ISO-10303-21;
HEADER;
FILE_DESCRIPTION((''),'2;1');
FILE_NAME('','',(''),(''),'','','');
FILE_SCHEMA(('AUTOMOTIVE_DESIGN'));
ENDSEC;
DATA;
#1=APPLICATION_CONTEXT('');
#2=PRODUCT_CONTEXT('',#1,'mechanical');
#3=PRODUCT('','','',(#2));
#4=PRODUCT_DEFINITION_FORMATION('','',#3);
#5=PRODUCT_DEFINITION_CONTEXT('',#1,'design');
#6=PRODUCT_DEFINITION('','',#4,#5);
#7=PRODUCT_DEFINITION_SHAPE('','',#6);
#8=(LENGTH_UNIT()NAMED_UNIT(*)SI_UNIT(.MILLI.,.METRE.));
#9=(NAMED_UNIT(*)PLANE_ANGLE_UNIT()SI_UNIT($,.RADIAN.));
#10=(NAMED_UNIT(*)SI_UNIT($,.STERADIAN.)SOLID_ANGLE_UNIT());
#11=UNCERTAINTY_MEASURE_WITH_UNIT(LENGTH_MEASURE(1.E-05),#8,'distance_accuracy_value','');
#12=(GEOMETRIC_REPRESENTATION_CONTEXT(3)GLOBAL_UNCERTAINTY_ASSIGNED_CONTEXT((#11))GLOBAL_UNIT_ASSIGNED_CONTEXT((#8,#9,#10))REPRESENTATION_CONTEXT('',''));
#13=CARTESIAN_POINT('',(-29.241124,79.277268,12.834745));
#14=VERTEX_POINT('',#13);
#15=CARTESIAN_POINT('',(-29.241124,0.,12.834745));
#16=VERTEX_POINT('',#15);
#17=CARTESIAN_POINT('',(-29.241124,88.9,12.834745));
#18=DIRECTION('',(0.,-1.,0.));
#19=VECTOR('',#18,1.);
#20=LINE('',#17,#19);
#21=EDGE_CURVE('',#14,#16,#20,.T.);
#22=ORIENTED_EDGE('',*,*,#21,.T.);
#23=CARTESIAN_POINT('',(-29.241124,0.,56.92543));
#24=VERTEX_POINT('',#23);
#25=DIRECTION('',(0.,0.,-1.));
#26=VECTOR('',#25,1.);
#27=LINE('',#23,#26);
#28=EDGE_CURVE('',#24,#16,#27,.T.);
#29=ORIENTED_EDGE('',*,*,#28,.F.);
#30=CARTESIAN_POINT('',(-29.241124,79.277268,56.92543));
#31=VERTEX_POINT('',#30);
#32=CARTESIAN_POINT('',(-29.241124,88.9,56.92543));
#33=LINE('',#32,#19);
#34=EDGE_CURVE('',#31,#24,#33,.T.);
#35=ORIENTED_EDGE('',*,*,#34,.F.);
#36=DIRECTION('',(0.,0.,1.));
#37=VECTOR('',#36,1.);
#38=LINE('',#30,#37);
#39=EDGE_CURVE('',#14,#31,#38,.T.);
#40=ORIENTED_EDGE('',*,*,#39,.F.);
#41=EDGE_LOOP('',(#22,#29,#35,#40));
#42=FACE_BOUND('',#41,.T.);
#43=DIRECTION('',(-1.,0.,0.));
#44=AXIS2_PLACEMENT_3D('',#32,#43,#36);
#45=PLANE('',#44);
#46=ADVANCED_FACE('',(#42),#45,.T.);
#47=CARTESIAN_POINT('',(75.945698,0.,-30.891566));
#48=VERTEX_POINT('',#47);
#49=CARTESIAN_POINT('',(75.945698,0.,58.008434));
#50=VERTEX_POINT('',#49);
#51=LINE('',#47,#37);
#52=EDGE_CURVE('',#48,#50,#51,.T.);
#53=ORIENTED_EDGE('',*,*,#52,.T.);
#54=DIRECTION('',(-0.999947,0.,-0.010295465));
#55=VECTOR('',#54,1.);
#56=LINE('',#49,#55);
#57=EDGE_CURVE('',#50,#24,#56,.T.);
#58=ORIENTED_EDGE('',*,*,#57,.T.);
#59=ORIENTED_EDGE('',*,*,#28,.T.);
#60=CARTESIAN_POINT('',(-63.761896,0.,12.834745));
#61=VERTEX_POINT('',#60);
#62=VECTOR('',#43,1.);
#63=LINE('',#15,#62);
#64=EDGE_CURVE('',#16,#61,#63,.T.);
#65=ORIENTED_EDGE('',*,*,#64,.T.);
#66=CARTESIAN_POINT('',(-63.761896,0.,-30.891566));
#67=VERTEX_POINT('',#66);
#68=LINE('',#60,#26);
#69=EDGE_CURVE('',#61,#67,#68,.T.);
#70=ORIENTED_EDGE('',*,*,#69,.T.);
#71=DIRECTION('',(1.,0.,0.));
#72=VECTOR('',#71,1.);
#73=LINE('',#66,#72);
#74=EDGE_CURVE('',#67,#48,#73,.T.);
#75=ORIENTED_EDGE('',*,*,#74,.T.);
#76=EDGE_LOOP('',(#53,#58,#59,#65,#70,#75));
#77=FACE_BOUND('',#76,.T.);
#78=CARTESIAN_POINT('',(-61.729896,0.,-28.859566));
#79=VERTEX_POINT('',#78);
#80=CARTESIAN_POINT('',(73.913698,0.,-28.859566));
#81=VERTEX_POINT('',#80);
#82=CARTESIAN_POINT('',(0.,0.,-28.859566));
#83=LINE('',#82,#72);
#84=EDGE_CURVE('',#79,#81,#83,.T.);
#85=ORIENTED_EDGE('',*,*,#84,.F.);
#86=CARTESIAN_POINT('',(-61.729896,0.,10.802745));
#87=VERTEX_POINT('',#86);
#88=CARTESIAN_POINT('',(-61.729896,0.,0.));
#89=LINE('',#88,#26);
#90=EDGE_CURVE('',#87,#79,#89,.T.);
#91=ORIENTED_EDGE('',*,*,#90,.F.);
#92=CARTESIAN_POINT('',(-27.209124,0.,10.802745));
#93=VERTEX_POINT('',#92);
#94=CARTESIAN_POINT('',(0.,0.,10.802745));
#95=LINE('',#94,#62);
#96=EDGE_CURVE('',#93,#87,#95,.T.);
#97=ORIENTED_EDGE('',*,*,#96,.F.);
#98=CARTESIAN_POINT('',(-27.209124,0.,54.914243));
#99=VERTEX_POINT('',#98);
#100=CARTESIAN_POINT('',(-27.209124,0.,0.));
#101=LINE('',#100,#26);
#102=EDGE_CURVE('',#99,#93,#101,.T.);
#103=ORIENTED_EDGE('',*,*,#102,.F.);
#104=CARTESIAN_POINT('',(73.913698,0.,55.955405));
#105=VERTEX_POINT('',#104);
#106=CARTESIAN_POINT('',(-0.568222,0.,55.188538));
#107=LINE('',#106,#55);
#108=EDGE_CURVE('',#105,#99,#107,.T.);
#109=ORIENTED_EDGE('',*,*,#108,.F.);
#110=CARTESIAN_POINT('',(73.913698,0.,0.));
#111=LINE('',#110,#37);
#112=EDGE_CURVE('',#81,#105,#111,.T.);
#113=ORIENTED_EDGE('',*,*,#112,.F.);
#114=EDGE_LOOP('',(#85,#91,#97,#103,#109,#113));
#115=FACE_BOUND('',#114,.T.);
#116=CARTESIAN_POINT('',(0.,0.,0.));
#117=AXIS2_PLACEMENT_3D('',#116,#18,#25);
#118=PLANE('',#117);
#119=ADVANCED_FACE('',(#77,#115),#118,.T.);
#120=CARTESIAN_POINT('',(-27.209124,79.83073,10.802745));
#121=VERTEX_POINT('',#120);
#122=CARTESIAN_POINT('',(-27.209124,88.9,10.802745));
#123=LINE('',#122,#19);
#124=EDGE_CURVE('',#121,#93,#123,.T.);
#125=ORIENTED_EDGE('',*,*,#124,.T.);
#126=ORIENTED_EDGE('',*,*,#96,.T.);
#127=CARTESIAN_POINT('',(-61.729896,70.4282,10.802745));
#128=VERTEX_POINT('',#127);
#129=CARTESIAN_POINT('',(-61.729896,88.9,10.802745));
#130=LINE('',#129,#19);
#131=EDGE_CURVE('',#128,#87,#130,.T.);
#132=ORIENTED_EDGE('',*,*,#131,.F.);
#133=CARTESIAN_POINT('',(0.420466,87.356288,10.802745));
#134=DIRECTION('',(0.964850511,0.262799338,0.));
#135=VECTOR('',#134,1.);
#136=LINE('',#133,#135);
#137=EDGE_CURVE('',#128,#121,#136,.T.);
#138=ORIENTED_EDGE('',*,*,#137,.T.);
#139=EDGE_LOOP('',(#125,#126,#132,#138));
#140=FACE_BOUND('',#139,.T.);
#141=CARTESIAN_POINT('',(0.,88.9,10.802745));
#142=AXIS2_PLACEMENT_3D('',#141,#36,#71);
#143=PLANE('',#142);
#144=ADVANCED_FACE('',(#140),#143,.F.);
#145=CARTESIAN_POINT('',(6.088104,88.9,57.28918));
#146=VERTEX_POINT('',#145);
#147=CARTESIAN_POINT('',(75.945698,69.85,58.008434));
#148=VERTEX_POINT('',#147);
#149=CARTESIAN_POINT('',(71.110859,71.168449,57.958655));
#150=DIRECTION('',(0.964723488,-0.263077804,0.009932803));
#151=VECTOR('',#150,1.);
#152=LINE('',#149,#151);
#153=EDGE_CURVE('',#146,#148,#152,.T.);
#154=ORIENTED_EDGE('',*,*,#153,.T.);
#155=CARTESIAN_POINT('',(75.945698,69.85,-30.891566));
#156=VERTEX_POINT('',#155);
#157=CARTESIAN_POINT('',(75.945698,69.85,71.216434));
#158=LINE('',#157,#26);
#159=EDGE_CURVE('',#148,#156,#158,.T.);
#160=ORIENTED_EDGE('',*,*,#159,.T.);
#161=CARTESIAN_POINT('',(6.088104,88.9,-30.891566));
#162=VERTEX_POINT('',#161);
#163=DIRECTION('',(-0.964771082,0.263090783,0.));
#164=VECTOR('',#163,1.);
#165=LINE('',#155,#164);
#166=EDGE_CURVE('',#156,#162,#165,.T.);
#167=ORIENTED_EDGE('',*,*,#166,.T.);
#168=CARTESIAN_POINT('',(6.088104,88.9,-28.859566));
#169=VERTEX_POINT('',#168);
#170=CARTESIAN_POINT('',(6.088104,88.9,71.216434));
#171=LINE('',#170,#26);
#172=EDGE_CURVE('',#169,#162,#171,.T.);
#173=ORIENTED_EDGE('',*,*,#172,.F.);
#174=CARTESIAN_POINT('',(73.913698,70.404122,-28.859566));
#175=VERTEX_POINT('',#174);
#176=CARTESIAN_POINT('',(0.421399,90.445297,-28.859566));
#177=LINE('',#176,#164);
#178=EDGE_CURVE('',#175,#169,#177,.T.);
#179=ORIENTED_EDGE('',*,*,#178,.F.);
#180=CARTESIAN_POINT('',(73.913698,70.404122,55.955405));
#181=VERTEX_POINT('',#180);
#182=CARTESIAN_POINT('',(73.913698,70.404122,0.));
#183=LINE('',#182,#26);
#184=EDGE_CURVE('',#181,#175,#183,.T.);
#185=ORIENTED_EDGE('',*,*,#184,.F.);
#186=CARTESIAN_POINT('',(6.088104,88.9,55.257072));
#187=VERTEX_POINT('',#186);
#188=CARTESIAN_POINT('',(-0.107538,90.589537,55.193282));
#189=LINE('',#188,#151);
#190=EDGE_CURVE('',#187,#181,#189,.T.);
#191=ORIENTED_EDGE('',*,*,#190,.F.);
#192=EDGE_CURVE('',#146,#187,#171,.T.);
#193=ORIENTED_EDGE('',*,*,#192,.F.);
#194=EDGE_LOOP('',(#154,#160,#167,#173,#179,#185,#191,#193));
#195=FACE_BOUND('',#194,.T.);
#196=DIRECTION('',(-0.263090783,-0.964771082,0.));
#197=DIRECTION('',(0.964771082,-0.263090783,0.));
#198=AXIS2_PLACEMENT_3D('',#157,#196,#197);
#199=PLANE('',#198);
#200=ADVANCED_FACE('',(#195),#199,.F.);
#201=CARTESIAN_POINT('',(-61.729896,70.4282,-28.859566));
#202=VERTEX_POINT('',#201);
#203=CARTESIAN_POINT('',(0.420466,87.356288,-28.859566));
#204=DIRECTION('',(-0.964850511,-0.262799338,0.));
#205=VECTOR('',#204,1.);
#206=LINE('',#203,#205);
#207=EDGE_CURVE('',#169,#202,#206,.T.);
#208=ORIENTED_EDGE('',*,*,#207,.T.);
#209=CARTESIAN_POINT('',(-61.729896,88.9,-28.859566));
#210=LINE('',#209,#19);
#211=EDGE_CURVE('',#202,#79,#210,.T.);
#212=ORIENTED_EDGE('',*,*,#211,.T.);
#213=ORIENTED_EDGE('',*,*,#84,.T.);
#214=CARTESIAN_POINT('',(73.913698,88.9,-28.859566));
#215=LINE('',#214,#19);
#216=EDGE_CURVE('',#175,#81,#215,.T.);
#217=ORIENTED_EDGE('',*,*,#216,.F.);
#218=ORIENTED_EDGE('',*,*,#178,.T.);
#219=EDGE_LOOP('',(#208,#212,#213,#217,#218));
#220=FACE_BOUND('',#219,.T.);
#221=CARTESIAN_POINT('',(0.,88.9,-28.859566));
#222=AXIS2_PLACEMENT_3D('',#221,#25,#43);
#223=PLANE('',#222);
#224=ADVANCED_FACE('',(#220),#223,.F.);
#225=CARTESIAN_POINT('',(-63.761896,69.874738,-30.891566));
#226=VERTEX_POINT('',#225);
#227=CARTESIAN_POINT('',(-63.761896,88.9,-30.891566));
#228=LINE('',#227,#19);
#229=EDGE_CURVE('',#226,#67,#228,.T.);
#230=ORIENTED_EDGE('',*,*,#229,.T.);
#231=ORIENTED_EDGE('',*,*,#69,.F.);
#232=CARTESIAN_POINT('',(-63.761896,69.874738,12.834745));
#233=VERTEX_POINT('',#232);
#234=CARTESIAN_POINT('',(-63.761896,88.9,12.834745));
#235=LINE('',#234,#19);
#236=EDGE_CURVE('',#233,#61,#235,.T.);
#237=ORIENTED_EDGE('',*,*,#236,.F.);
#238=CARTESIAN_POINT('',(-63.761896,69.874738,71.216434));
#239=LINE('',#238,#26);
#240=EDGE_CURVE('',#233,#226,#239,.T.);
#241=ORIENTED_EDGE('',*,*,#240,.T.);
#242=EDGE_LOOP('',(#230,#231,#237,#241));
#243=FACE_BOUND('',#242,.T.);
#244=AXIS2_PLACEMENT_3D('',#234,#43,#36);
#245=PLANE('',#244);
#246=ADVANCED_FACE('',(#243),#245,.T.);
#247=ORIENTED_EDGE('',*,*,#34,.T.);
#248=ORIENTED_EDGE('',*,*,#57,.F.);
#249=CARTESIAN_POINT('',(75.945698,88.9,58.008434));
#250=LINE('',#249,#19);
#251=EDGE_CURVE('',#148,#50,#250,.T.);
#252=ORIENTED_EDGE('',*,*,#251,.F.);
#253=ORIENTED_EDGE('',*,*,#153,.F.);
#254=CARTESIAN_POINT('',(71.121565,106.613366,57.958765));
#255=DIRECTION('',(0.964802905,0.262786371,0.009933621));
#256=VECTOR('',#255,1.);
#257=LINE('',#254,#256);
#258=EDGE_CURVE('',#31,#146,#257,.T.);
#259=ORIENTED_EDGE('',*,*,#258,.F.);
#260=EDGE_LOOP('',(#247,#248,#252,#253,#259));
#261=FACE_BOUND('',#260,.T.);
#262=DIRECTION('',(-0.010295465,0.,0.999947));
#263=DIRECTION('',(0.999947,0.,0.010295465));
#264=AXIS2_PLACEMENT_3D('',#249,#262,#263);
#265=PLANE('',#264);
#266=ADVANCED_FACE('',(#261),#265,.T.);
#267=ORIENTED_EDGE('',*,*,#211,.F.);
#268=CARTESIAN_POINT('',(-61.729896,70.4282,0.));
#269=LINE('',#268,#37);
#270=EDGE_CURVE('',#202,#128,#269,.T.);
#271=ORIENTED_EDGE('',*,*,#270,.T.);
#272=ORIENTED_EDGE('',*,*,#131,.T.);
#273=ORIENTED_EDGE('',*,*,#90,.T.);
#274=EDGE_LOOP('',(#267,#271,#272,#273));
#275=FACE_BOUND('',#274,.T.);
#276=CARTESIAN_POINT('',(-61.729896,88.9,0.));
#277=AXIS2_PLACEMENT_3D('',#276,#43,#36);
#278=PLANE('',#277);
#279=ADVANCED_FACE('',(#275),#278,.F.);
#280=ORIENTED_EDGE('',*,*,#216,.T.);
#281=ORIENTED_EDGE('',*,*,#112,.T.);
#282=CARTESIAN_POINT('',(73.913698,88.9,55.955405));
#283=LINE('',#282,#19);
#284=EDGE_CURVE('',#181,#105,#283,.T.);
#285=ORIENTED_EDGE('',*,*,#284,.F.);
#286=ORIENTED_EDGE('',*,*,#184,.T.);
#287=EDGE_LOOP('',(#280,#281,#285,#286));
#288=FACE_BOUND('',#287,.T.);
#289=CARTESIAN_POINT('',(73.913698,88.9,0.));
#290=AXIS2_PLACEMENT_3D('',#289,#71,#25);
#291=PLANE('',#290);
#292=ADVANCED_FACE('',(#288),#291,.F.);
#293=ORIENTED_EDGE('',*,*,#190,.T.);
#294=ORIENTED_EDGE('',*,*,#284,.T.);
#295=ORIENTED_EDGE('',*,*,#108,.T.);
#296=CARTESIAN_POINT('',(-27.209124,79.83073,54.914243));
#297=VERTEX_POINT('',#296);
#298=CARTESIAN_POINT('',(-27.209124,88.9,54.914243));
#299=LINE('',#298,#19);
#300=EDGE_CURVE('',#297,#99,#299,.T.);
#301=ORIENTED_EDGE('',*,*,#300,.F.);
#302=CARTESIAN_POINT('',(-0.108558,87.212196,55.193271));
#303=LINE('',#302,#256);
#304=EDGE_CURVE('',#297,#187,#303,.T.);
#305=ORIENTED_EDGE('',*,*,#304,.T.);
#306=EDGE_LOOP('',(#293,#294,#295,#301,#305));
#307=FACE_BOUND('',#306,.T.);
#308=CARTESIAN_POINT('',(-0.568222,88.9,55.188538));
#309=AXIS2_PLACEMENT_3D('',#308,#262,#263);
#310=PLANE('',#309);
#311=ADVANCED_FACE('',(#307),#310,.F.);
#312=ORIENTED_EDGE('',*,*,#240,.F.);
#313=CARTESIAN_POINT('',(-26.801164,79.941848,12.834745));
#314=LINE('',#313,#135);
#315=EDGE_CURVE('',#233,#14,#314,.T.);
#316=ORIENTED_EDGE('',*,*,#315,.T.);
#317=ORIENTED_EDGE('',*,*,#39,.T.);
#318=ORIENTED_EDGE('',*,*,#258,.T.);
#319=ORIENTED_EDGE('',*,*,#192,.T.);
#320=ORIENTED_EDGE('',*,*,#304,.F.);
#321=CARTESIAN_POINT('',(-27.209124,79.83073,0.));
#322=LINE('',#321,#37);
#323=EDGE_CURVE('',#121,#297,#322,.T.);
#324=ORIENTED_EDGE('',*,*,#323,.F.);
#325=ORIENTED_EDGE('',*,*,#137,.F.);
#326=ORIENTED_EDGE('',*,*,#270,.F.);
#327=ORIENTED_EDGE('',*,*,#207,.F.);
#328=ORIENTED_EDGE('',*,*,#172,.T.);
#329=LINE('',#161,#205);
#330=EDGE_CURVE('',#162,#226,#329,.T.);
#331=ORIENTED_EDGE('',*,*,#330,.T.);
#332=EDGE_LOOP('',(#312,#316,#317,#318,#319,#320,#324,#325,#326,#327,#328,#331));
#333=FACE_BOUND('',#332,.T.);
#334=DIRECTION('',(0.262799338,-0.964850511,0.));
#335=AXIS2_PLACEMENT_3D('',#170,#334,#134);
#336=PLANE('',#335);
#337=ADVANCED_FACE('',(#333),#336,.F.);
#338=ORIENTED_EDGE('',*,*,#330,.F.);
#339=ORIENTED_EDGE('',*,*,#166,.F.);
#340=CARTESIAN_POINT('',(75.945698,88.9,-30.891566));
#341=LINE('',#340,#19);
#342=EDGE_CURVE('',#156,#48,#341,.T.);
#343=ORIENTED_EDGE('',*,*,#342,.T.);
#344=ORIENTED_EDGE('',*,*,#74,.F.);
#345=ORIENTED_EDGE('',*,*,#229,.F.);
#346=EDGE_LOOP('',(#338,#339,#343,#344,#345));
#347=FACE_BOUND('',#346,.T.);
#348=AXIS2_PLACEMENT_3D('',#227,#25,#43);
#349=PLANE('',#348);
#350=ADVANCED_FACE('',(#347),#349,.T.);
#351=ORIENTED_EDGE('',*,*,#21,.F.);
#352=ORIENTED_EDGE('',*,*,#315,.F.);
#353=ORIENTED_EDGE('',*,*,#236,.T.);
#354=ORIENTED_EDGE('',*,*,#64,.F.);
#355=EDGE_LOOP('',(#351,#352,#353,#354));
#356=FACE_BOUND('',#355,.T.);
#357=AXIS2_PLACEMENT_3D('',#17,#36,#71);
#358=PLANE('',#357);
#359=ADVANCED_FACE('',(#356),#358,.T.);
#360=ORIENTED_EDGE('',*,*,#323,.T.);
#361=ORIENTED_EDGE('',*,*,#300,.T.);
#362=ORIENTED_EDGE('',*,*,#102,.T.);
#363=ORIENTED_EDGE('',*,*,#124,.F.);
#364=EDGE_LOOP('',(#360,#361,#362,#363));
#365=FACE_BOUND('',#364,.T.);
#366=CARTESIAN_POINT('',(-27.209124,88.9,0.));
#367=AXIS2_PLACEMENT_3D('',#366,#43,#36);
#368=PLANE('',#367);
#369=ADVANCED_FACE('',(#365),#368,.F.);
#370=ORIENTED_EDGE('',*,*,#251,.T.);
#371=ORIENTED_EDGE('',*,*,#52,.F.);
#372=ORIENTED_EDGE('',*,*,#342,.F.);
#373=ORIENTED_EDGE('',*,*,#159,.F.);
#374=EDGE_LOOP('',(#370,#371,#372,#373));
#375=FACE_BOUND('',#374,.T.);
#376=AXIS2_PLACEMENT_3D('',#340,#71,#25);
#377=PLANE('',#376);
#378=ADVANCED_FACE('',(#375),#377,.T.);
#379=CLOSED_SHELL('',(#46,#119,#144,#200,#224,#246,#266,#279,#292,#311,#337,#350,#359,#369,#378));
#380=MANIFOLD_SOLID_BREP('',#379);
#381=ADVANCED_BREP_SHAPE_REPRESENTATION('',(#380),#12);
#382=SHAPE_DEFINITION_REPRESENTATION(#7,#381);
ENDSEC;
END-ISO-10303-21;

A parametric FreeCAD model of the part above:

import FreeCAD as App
import Part
import Sketcher
Q = App.Units.Quantity

doc = App.newDocument("Part")
body = doc.addObject("PartDesign::Body", "Body")

# Sketch on XZ plane
sketch1 = body.newObject("Sketcher::SketchObject", "Sketch")
sketch1.AttachmentSupport = (doc.getObject("XZ_Plane"), [""])
sketch1.MapMode = "FlatFace"
sketch1.addGeometry([
    Part.LineSegment(App.Vector(76, -31, 0), App.Vector(-64, -31, 0)),  # 0
    Part.LineSegment(App.Vector(-64, -31, 0), App.Vector(-64, 13, 0)),  # 1
    Part.LineSegment(App.Vector(-64, 13, 0), App.Vector(-29, 13, 0)),  # 2
    Part.LineSegment(App.Vector(-29, 13, 0), App.Vector(-29, 57, 0)),  # 3
    Part.LineSegment(App.Vector(-29, 57, 0), App.Vector(76, 58, 0)),  # 4
    Part.LineSegment(App.Vector(76, 58, 0), App.Vector(76, -31, 0)),  # 5
    Part.LineSegment(App.Vector(-62, 11, 0), App.Vector(-62, -29, 0)),  # 6
    Part.LineSegment(App.Vector(-62, -29, 0), App.Vector(74, -29, 0)),  # 7
    Part.LineSegment(App.Vector(74, -29, 0), App.Vector(74, 56, 0)),  # 8
    Part.LineSegment(App.Vector(74, 56, 0), App.Vector(-27, 55, 0)),  # 9
    Part.LineSegment(App.Vector(-27, 55, 0), App.Vector(-27, 11, 0)),  # 10
    Part.LineSegment(App.Vector(-27, 11, 0), App.Vector(-62, 11, 0)),  # 11
], False)
sketch1.addConstraint([
    Sketcher.Constraint("Coincident", 0, 2, 1, 1),
    Sketcher.Constraint("Coincident", 1, 2, 2, 1),
    Sketcher.Constraint("Coincident", 2, 2, 3, 1),
    Sketcher.Constraint("Coincident", 3, 2, 4, 1),
    Sketcher.Constraint("Coincident", 4, 2, 5, 1),
    Sketcher.Constraint("Coincident", 5, 2, 0, 1),
    Sketcher.Constraint("Coincident", 6, 2, 7, 1),
    Sketcher.Constraint("Coincident", 7, 2, 8, 1),
    Sketcher.Constraint("Coincident", 8, 2, 9, 1),
    Sketcher.Constraint("Coincident", 9, 2, 10, 1),
    Sketcher.Constraint("Coincident", 10, 2, 11, 1),
    Sketcher.Constraint("Coincident", 11, 2, 6, 1),
    Sketcher.Constraint("Horizontal", 0),
    Sketcher.Constraint("Vertical", 1),
    Sketcher.Constraint("Horizontal", 2),
    Sketcher.Constraint("Vertical", 3),
    Sketcher.Constraint("Vertical", 5),
    Sketcher.Constraint("Vertical", 6),
    Sketcher.Constraint("Horizontal", 7),
    Sketcher.Constraint("Vertical", 8),
    Sketcher.Constraint("Vertical", 10),
    Sketcher.Constraint("Horizontal", 11),
    Sketcher.Constraint("Parallel", 4, 9),
    Sketcher.Constraint("Equal", 2, 11),
    Sketcher.Constraint("DistanceY", 5, 2, 5, 1, Q("3.5 in")),
    Sketcher.Constraint("DistanceX", 0, 2, 6, 2, Q("0.08 in")),
    Sketcher.Constraint("DistanceY", 0, 2, 6, 2, Q("0.08 in")),
    Sketcher.Constraint("DistanceX", 7, 2, 5, 2, Q("0.08 in")),
    Sketcher.Constraint("DistanceY", 10, 2, 2, 2, Q("0.08 in")),
    Sketcher.Constraint("DistanceY", 10, 2, 10, 1, Q("44.111498 mm")),
    Sketcher.Constraint("DistanceX", 2, 1, 2, 2, Q("34.520772 mm")),
    Sketcher.Constraint("DistanceY", 1, 1, 1, 2, Q("43.726311 mm")),
    Sketcher.Constraint("DistanceY", 8, 1, 8, 2, Q("84.814971 mm")),
    Sketcher.Constraint("DistanceX", 0, 2, 0, 1, Q("139.707594 mm")),
    Sketcher.Constraint("DistanceY", -1, 1, 3, 2, Q("56.92543 mm")),
    Sketcher.Constraint("DistanceX", 0, 2, -1, 1, Q("63.761896 mm")),
])
pad1 = body.newObject("PartDesign::Pad", "Pad")
pad1.Profile = sketch1
pad1.Length = Q("3.5 in")
pad1.Reversed = True

# Sketch on XY plane
sketch2 = body.newObject("Sketcher::SketchObject", "Sketch001")
sketch2.AttachmentSupport = (doc.getObject("XY_Plane"), [""])
sketch2.MapMode = "FlatFace"
sketch2.AttachmentOffset = App.Placement(App.Vector(0, 0, -30.891566), App.Rotation())
sketch2.addGeometry([
    Part.LineSegment(App.Vector(76, 70, 0), App.Vector(6, 89, 0)),  # 0
    Part.LineSegment(App.Vector(6, 89, 0), App.Vector(-64, 70, 0)),  # 1
    Part.LineSegment(App.Vector(-64, 70, 0), App.Vector(-86, 68, 0)),  # 2
    Part.LineSegment(App.Vector(-86, 68, 0), App.Vector(-86, 108, 0)),  # 3
    Part.LineSegment(App.Vector(-86, 108, 0), App.Vector(94, 108, 0)),  # 4
    Part.LineSegment(App.Vector(94, 108, 0), App.Vector(94, 70, 0)),  # 5
    Part.LineSegment(App.Vector(94, 70, 0), App.Vector(76, 70, 0)),  # 6
], False)
sketch2.addConstraint([
    Sketcher.Constraint("Coincident", 0, 2, 1, 1),
    Sketcher.Constraint("Coincident", 1, 2, 2, 1),
    Sketcher.Constraint("Coincident", 2, 2, 3, 1),
    Sketcher.Constraint("Coincident", 3, 2, 4, 1),
    Sketcher.Constraint("Coincident", 4, 2, 5, 1),
    Sketcher.Constraint("Coincident", 5, 2, 6, 1),
    Sketcher.Constraint("Coincident", 6, 2, 0, 1),
    Sketcher.Constraint("Vertical", 3),
    Sketcher.Constraint("Horizontal", 4),
    Sketcher.Constraint("Vertical", 5),
    Sketcher.Constraint("Horizontal", 6),
    Sketcher.Constraint("DistanceY", -1, 1, 0, 2, Q("3.5 in")),
    Sketcher.Constraint("DistanceY", -1, 1, 5, 2, Q("2.75 in")),
    Sketcher.Constraint("DistanceX", 1, 2, 0, 2, Q("2.75 in")),
    Sketcher.Constraint("DistanceY", 3, 1, 3, 2, Q("39.577602 mm")),
    Sketcher.Constraint("DistanceX", 6, 2, 6, 1, Q("18.493361 mm")),
    Sketcher.Constraint("Distance", 2, Q("22.339078 mm")),
    Sketcher.Constraint("DistanceX", 4, 1, 4, 2, Q("180.486563 mm")),
    Sketcher.Constraint("DistanceY", 5, 2, 5, 1, Q("38.057647 mm")),
    Sketcher.Constraint("DistanceY", -1, 1, 1, 2, Q("69.874738 mm")),
    Sketcher.Constraint("DistanceX", -1, 1, 4, 2, Q("94.439059 mm")),
])
pocket1 = body.newObject("PartDesign::Pocket", "Pocket")
pocket1.Profile = sketch2
pocket1.Length = Q("4.02 in")
pocket1.Reversed = True

doc.recompute()
